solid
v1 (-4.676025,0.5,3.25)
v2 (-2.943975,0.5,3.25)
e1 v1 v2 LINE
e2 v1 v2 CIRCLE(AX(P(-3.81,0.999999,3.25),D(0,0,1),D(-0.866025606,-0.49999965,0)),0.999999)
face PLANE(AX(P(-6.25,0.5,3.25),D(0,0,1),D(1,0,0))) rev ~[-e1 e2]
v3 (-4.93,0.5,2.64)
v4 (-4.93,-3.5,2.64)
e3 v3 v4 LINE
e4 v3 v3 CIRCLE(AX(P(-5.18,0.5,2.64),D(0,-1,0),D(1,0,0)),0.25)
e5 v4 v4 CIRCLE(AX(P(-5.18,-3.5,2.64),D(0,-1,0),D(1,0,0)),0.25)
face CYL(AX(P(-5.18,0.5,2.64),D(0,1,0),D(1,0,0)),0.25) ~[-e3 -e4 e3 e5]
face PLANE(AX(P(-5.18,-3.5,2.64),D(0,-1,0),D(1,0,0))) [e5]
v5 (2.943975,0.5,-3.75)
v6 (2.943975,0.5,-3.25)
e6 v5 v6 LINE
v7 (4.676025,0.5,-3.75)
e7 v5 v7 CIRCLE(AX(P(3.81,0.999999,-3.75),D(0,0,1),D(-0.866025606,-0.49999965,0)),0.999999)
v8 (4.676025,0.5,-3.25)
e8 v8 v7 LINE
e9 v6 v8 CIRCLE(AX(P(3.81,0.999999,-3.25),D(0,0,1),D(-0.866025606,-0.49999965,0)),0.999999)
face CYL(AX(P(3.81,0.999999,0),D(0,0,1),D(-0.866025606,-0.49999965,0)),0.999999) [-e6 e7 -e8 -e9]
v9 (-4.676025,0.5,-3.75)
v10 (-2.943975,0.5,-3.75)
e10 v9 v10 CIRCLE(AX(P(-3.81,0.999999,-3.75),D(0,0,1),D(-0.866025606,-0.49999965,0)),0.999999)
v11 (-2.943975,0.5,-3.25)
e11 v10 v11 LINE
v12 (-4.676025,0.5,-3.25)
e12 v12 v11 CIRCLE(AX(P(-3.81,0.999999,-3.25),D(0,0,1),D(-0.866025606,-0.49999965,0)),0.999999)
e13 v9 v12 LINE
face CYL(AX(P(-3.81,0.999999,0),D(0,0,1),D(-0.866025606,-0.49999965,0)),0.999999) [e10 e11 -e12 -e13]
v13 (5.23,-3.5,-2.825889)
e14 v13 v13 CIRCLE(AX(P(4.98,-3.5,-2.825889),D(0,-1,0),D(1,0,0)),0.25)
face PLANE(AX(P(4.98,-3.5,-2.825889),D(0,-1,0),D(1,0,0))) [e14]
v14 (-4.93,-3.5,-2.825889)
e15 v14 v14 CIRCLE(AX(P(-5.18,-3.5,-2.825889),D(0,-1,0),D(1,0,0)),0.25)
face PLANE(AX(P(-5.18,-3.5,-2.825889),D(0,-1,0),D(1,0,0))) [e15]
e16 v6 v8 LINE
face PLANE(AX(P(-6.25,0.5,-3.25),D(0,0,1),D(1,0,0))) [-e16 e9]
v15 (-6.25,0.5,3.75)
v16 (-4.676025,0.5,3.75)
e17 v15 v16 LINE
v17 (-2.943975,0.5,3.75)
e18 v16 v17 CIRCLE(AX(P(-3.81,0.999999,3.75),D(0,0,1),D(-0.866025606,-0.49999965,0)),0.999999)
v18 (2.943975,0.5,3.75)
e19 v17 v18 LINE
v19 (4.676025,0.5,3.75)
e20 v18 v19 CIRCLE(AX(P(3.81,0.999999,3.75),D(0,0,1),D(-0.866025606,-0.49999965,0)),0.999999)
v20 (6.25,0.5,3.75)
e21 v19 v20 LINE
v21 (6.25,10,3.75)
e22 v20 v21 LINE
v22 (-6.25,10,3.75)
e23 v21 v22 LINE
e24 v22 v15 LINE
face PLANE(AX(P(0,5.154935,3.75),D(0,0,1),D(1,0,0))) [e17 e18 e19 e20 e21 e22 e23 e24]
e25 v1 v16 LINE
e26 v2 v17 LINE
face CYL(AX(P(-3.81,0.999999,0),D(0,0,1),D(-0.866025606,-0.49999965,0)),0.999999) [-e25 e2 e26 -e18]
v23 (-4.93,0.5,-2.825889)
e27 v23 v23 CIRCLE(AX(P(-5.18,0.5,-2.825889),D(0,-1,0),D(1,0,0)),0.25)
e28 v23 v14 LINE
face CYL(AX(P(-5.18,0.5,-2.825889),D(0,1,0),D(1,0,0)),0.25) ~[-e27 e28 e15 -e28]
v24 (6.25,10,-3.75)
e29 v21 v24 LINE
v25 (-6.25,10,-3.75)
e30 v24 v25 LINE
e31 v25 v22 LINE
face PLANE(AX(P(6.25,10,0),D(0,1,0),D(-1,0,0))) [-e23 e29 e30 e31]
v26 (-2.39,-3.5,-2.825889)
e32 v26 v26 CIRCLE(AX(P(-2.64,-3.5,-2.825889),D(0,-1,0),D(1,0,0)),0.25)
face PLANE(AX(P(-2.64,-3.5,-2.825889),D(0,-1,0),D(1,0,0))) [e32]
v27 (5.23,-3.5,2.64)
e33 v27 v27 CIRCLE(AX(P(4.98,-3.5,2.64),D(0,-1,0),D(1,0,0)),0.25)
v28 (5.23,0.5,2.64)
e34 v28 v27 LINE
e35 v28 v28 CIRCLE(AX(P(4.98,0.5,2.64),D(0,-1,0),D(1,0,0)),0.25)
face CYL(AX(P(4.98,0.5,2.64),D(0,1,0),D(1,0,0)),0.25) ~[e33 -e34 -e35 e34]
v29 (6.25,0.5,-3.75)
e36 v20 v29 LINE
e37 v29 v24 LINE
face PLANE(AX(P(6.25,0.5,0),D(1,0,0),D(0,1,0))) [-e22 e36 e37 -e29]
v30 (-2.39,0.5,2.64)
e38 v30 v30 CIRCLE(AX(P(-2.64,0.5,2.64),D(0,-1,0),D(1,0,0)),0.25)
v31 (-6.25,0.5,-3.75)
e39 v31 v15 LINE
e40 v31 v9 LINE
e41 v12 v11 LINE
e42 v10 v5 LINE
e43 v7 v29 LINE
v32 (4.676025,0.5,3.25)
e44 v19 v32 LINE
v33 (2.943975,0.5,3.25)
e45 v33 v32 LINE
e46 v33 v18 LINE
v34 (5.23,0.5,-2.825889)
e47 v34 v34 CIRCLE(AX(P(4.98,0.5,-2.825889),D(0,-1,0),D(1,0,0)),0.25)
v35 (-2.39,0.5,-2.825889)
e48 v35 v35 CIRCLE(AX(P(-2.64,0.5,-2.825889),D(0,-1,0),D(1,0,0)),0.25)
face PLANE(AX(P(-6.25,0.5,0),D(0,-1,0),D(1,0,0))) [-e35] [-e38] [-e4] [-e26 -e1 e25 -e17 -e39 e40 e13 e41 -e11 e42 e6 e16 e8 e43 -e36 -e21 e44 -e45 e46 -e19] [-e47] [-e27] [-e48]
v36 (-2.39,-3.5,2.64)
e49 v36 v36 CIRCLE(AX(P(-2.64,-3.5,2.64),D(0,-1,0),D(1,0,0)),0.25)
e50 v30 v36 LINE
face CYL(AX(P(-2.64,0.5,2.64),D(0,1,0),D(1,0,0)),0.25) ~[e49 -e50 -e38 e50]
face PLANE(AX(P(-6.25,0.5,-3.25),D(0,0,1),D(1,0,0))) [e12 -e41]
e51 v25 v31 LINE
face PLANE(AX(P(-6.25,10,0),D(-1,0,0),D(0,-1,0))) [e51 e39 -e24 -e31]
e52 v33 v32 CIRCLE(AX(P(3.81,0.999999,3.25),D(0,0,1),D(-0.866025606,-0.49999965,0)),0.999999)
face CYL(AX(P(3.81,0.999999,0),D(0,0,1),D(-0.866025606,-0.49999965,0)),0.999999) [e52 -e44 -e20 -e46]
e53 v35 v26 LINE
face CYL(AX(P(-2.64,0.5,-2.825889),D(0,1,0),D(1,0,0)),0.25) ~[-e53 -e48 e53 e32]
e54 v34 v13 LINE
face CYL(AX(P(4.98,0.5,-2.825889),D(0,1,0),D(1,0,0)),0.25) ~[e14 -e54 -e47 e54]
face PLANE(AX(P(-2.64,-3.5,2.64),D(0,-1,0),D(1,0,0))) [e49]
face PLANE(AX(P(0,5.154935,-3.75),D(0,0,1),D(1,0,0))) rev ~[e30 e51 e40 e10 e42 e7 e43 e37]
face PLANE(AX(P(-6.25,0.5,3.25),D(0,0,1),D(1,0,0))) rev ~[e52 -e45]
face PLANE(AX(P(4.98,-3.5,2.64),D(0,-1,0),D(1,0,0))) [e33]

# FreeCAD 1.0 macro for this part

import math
import FreeCAD as App
import Part
import Sketcher

V = App.Vector


def add_polygon(sketch, points):
    """Adds a closed chain of lines whose ends are joined by coincident constraints."""
    first, n = sketch.GeometryCount, len(points)
    for a, b in zip(points, points[1:] + points[:1]):
        sketch.addGeometry(Part.LineSegment(App.Vector(*a, 0), App.Vector(*b, 0)), False)
    for i in range(n):
        sketch.addConstraint(Sketcher.Constraint("Coincident", first + i, 2, first + (i + 1) % n, 1))

doc = App.newDocument("Part")
body = doc.addObject("PartDesign::Body", "Body")

sketch1 = doc.addObject("Sketcher::SketchObject", "Sketch")
body.addObject(sketch1)
sketch1.AttachmentSupport = (doc.XY_Plane, [""])
sketch1.MapMode = "FlatFace"
sketch1.addGeometry(Part.LineSegment(V(6.2, 10, 0), V(-6.2, 10, 0)), False)
sketch1.addGeometry(Part.LineSegment(V(-6.2, 10, 0), V(-6.2, 0.5, 0)), False)
sketch1.addGeometry(Part.LineSegment(V(-6.2, 0.5, 0), V(-4.7, 0.5, 0)), False)
sketch1.addGeometry(Part.ArcOfCircle(Part.Circle(V(-3.8, 1, 0), V(0, 0, 1), 1), math.radians(-150), math.radians(-30)), False)
sketch1.addGeometry(Part.LineSegment(V(-2.9, 0.5, 0), V(2.9, 0.5, 0)), False)
sketch1.addGeometry(Part.ArcOfCircle(Part.Circle(V(3.8, 1, 0), V(0, 0, 1), 1), math.radians(-150), math.radians(-30)), False)
sketch1.addGeometry(Part.LineSegment(V(4.7, 0.5, 0), V(6.2, 0.5, 0)), False)
sketch1.addGeometry(Part.LineSegment(V(6.2, 0.5, 0), V(6.2, 10, 0)), False)
sketch1.addConstraint(Sketcher.Constraint("Coincident", 0, 2, 1, 1))
sketch1.addConstraint(Sketcher.Constraint("Coincident", 1, 2, 2, 1))
sketch1.addConstraint(Sketcher.Constraint("Coincident", 2, 2, 3, 1))
sketch1.addConstraint(Sketcher.Constraint("Coincident", 3, 2, 4, 1))
sketch1.addConstraint(Sketcher.Constraint("Coincident", 4, 2, 5, 1))
sketch1.addConstraint(Sketcher.Constraint("Coincident", 5, 2, 6, 1))
sketch1.addConstraint(Sketcher.Constraint("Coincident", 6, 2, 7, 1))
sketch1.addConstraint(Sketcher.Constraint("Coincident", 7, 2, 0, 1))
sketch1.addConstraint(Sketcher.Constraint("Horizontal", 0))
sketch1.addConstraint(Sketcher.Constraint("Vertical", 1))
sketch1.addConstraint(Sketcher.Constraint("Horizontal", 2))
sketch1.addConstraint(Sketcher.Constraint("Horizontal", 4))
sketch1.addConstraint(Sketcher.Constraint("Horizontal", 6))
sketch1.addConstraint(Sketcher.Constraint("Vertical", 7))
sketch1.addConstraint(Sketcher.Constraint("Equal", 3, 5))
sketch1.addConstraint(Sketcher.Constraint("Symmetric", 3, 3, 5, 3, -2))
sketch1.addConstraint(Sketcher.Constraint("Symmetric", 1, 2, 6, 2, -2))
sketch1.addConstraint(Sketcher.Constraint("Horizontal", 2, 2, 3, 2))
sketch1.addConstraint(Sketcher.Constraint("Radius", 3, 0.999999))
sketch1.addConstraint(Sketcher.Constraint("DistanceX", 0, 2, 0, 1, 12.5))
sketch1.addConstraint(Sketcher.Constraint("DistanceY", 1, 2, 1, 1, 9.5))
sketch1.addConstraint(Sketcher.Constraint("DistanceY", -1, 1, 3, 3, 0.999999))
sketch1.addConstraint(Sketcher.Constraint("DistanceY", -1, 1, 0, 2, 10.0))
sketch1.addConstraint(Sketcher.Constraint("DistanceX", 3, 3, -1, 1, 3.81))
pad1 = doc.addObject("PartDesign::Pad", "Pad")
body.addObject(pad1)
pad1.Profile = sketch1
pad1.Type = "TwoLengths"
pad1.Length = 3.75
pad1.Length2 = 3.75

sketch2 = doc.addObject("Sketcher::SketchObject", "Sketch001")
body.addObject(sketch2)
sketch2.AttachmentSupport = (doc.XZ_Plane, [""])
sketch2.MapMode = "FlatFace"
sketch2.AttachmentOffset = App.Placement(V(0, 0, -0.5), App.Rotation())
add_polygon(sketch2, [(-6, 3), (-6, -3), (6, -3), (6, 3)])
sketch2.addConstraint(Sketcher.Constraint("Vertical", 0))
sketch2.addConstraint(Sketcher.Constraint("Horizontal", 1))
sketch2.addConstraint(Sketcher.Constraint("Vertical", 2))
sketch2.addConstraint(Sketcher.Constraint("Horizontal", 3))
sketch2.addConstraint(Sketcher.Constraint("Symmetric", 0, 2, 2, 2, -1, 1))
sketch2.addConstraint(Sketcher.Constraint("DistanceX", 1, 1, 1, 2, 12.5))
sketch2.addConstraint(Sketcher.Constraint("DistanceY", 0, 2, 0, 1, 6.5))
pocket1 = doc.addObject("PartDesign::Pocket", "Pocket")
body.addObject(pocket1)
pocket1.Profile = sketch2
pocket1.Type = "ThroughAll"
pocket1.Reversed = True

sketch3 = doc.addObject("Sketcher::SketchObject", "Sketch002")
body.addObject(sketch3)
sketch3.AttachmentSupport = (doc.XZ_Plane, [""])
sketch3.MapMode = "FlatFace"
sketch3.AttachmentOffset = App.Placement(V(0, 0, -0.5), App.Rotation())
sketch3.addGeometry(Part.Circle(V(-5.18, 2.64, 0), V(0, 0, 1), 0.25), False)
sketch3.addGeometry(Part.Circle(V(-2.64, 2.64, 0), V(0, 0, 1), 0.25), False)
sketch3.addGeometry(Part.Circle(V(4.98, 2.64, 0), V(0, 0, 1), 0.25), False)
sketch3.addGeometry(Part.Circle(V(4.98, -2.83, 0), V(0, 0, 1), 0.25), False)
sketch3.addGeometry(Part.Circle(V(-5.18, -2.83, 0), V(0, 0, 1), 0.25), False)
sketch3.addGeometry(Part.Circle(V(-2.64, -2.83, 0), V(0, 0, 1), 0.25), False)
sketch3.addConstraint(Sketcher.Constraint("Equal", 0, 1))
sketch3.addConstraint(Sketcher.Constraint("Equal", 1, 2))
sketch3.addConstraint(Sketcher.Constraint("Equal", 2, 3))
sketch3.addConstraint(Sketcher.Constraint("Equal", 3, 4))
sketch3.addConstraint(Sketcher.Constraint("Equal", 4, 5))
sketch3.addConstraint(Sketcher.Constraint("Horizontal", 0, 3, 1, 3))
sketch3.addConstraint(Sketcher.Constraint("Horizontal", 1, 3, 2, 3))
sketch3.addConstraint(Sketcher.Constraint("Horizontal", 3, 3, 4, 3))
sketch3.addConstraint(Sketcher.Constraint("Horizontal", 4, 3, 5, 3))
sketch3.addConstraint(Sketcher.Constraint("Vertical", 2, 3, 3, 3))
sketch3.addConstraint(Sketcher.Constraint("Vertical", 0, 3, 4, 3))
sketch3.addConstraint(Sketcher.Constraint("Vertical", 1, 3, 5, 3))
sketch3.addConstraint(Sketcher.Constraint("Diameter", 0, 0.5))
sketch3.addConstraint(Sketcher.Constraint("DistanceX", 0, 3, -1, 1, 5.18))
sketch3.addConstraint(Sketcher.Constraint("DistanceY", -1, 1, 0, 3, 2.64))
sketch3.addConstraint(Sketcher.Constraint("DistanceX", 1, 3, -1, 1, 2.64))
sketch3.addConstraint(Sketcher.Constraint("DistanceX", -1, 1, 2, 3, 4.98))
sketch3.addConstraint(Sketcher.Constraint("DistanceY", 3, 3, -1, 1, 2.825889))
pad2 = doc.addObject("PartDesign::Pad", "Pad001")
body.addObject(pad2)
pad2.Profile = sketch3
pad2.Length = 4

doc.recompute()
